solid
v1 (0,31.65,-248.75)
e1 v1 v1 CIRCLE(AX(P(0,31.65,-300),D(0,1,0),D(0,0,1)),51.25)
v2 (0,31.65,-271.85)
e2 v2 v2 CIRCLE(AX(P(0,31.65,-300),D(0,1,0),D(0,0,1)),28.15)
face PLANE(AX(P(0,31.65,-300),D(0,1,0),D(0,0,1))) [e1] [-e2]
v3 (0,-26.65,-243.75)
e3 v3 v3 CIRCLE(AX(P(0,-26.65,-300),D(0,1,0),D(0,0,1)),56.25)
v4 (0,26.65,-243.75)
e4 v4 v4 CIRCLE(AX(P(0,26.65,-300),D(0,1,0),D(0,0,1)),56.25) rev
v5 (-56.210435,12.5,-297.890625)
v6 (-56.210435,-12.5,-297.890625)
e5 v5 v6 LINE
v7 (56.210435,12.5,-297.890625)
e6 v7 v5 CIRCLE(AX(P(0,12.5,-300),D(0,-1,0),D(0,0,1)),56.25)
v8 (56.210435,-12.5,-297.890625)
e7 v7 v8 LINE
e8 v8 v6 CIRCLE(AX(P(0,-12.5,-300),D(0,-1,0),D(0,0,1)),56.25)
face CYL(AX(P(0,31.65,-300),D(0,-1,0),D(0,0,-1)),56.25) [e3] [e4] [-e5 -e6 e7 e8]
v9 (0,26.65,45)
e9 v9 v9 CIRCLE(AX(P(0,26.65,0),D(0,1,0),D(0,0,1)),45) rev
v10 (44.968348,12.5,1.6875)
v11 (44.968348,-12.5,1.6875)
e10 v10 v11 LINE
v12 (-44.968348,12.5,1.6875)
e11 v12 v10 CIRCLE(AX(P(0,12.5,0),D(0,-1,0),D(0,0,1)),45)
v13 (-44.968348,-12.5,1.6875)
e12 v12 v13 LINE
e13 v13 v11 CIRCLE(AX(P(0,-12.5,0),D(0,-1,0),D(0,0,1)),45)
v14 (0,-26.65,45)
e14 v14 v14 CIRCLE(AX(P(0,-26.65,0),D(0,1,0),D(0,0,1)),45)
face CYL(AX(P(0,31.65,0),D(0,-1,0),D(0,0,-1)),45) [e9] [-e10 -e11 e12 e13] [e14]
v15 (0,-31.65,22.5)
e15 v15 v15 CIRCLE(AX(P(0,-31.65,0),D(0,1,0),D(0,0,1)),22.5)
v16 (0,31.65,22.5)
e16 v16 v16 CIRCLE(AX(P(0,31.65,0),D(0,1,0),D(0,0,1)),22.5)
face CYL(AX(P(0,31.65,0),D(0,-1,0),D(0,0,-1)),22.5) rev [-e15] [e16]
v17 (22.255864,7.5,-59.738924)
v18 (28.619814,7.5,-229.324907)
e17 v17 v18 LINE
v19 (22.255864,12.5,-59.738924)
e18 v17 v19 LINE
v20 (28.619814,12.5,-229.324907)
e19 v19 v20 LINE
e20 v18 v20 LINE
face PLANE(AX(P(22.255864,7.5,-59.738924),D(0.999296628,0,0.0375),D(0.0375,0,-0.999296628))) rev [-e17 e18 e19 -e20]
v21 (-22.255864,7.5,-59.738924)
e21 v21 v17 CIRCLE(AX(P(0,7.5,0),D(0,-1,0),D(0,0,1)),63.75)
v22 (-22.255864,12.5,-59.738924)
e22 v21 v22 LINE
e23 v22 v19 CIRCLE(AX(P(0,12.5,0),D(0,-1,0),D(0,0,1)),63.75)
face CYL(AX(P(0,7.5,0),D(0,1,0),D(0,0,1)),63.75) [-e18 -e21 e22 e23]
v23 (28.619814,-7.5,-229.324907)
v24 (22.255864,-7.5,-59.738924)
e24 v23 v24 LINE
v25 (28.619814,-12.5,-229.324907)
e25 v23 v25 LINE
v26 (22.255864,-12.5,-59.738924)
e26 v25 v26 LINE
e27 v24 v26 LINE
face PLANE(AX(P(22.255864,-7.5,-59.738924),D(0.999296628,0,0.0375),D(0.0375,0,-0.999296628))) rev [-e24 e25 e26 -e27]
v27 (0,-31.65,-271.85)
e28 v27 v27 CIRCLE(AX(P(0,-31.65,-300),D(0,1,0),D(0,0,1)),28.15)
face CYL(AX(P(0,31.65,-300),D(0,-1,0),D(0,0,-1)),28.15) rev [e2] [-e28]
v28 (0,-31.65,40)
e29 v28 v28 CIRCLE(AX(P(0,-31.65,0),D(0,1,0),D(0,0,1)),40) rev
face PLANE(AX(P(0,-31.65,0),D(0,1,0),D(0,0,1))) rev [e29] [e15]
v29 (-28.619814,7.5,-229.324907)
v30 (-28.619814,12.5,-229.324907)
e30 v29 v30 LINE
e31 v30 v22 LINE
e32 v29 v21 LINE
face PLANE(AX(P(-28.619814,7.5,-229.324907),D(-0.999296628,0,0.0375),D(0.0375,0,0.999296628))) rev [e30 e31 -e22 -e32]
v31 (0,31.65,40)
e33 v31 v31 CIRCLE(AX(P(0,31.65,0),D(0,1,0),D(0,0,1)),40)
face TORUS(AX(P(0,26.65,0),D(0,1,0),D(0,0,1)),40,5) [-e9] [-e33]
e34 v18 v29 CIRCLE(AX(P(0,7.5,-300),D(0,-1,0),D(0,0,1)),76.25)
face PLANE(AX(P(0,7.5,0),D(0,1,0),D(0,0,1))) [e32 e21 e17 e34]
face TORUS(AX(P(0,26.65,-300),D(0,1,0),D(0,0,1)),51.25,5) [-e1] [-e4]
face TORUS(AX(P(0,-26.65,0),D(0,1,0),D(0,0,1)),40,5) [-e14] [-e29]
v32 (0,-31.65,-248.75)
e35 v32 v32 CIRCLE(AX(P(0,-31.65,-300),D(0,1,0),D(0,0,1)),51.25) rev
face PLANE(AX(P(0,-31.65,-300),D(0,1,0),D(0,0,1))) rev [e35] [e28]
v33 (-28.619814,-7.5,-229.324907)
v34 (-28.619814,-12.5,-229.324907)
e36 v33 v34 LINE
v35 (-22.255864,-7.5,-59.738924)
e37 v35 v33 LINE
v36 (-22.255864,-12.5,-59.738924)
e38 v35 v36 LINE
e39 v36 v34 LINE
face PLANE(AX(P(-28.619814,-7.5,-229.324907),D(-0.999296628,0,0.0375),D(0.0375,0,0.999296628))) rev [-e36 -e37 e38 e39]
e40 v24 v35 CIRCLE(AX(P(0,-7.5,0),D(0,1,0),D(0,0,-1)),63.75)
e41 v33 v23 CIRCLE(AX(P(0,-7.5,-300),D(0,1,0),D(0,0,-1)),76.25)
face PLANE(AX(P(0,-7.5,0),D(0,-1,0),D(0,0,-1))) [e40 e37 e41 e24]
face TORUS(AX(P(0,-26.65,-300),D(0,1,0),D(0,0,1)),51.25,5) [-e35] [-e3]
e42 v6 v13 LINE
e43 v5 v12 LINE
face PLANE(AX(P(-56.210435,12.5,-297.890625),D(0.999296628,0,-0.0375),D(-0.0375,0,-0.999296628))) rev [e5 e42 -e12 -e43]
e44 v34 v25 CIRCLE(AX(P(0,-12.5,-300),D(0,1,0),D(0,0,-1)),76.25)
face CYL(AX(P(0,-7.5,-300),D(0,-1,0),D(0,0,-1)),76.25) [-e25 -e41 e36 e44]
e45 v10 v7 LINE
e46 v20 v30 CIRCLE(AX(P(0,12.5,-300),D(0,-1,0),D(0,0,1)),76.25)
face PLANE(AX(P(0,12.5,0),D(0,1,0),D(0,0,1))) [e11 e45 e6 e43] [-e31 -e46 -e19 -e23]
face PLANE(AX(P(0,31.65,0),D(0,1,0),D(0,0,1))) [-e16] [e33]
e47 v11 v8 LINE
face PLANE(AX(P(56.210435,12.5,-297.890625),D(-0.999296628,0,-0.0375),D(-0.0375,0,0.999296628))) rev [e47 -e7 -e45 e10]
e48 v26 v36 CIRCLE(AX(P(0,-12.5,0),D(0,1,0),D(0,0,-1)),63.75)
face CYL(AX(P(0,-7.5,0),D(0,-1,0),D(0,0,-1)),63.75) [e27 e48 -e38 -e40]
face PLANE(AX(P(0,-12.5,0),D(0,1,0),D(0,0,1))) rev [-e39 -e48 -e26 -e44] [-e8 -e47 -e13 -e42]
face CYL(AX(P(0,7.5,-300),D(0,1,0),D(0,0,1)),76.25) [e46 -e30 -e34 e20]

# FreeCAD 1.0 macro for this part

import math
import FreeCAD as App
import Part
import Sketcher

V = App.Vector
Q = App.Units.Quantity


def edges_at(feature, points):
    """Names of the edges that pass closest to the given points."""
    edges = feature.Shape.Edges
    near = lambda p: min(range(len(edges)), key=lambda i: edges[i].distToShape(Part.Vertex(*p))[0])
    return sorted({f"Edge{near(p) + 1}" for p in points})

doc = App.newDocument("Part")
body = doc.addObject("PartDesign::Body", "Body")

# Sketch on XZ plane
sketch1 = doc.addObject("Sketcher::SketchObject", "Sketch")
body.addObject(sketch1)
sketch1.AttachmentSupport = (doc.XZ_Plane, [""])
sketch1.MapMode = "FlatFace"
sketch1.addGeometry(Part.Circle(V(0, 0, 0), V(0, 0, 1), 45), False)
sketch1.addGeometry(Part.Circle(V(0, 0, 0), V(0, 0, 1), 22), False)
sketch1.addConstraint(Sketcher.Constraint("Coincident", 0, 3, -1, 1))
sketch1.addConstraint(Sketcher.Constraint("Coincident", 1, 3, -1, 1))
sketch1.addConstraint(Sketcher.Constraint("Diameter", 0, Q("90 mm")))
sketch1.addConstraint(Sketcher.Constraint("Diameter", 1, Q("45 mm")))
pad1 = doc.addObject("PartDesign::Pad", "Pad")
body.addObject(pad1)
pad1.Profile = sketch1
pad1.Length = 63.3
pad1.Midplane = True
body2 = doc.addObject("PartDesign::Body", "Body001")

# Sketch on XZ plane
sketch2 = doc.addObject("Sketcher::SketchObject", "Sketch001")
body2.addObject(sketch2)
sketch2.AttachmentSupport = (doc.getObject("XZ_Plane001"), [""])
sketch2.MapMode = "FlatFace"
sketch2.addGeometry(Part.Circle(V(0, -300, 0), V(0, 0, 1), 56), False)
sketch2.addGeometry(Part.Circle(V(0, -300, 0), V(0, 0, 1), 28), False)
sketch2.addConstraint(Sketcher.Constraint("Coincident", 1, 3, 0, 3))
sketch2.addConstraint(Sketcher.Constraint("PointOnObject", 0, 3, -2))
sketch2.addConstraint(Sketcher.Constraint("Diameter", 0, Q("112.5 mm")))
sketch2.addConstraint(Sketcher.Constraint("Diameter", 1, Q("56.3 mm")))
sketch2.addConstraint(Sketcher.Constraint("DistanceY", 0, 3, -1, 1, Q("300 mm")))
pad2 = doc.addObject("PartDesign::Pad", "Pad001")
body2.addObject(pad2)
pad2.Profile = sketch2
pad2.Length = 63.3
pad2.Midplane = True
body.AllowCompound = True
doc.recompute()

boolean = doc.addObject("PartDesign::Boolean", "Boolean")
body.addObject(boolean)
boolean.Type = "Fuse"
boolean.addObjects([body2])

# Sketch on XZ plane
sketch3 = doc.addObject("Sketcher::SketchObject", "Sketch002")
body.addObject(sketch3)
sketch3.AttachmentSupport = (doc.XZ_Plane, [""])
sketch3.MapMode = "FlatFace"
sketch3.addGeometry(Part.LineSegment(V(-56, -298, 0), V(-45, 2, 0)), False)
sketch3.addGeometry(Part.ArcOfCircle(Part.Circle(V(0, 0, 0), V(0, 0, 1), 45), math.radians(178), math.radians(362)), False)
sketch3.addGeometry(Part.LineSegment(V(45, 2, 0), V(56, -298, 0)), False)
sketch3.addGeometry(Part.ArcOfCircle(Part.Circle(V(0, -300, 0), V(0, 0, 1), 56), math.radians(2), math.radians(178)), False)
sketch3.addConstraint(Sketcher.Constraint("Tangent", 0, 2, 1, 1))
sketch3.addConstraint(Sketcher.Constraint("Tangent", 1, 2, 2, 1))
sketch3.addConstraint(Sketcher.Constraint("Tangent", 2, 2, 3, 1))
sketch3.addConstraint(Sketcher.Constraint("Tangent", 3, 2, 0, 1))
sketch3.addConstraint(Sketcher.Constraint("Coincident", 1, 3, -1, 1))
sketch3.addConstraint(Sketcher.Constraint("PointOnObject", 3, 3, -2))
sketch3.addConstraint(Sketcher.Constraint("Radius", 1, Q("45 mm")))
sketch3.addConstraint(Sketcher.Constraint("Radius", 3, Q("56.25 mm")))
sketch3.addConstraint(Sketcher.Constraint("DistanceY", 3, 3, -1, 1, Q("300 mm")))
pad3 = doc.addObject("PartDesign::Pad", "Pad002")
body.addObject(pad3)
pad3.Profile = sketch3
pad3.Length = 25
pad3.Midplane = True

# Sketch on XZ plane
sketch4 = doc.addObject("Sketcher::SketchObject", "Sketch003")
body.addObject(sketch4)
sketch4.AttachmentSupport = (doc.XZ_Plane, [""])
sketch4.MapMode = "FlatFace"
sketch4.AttachmentOffset = App.Placement(V(0, 0, -12.5), App.Rotation())
sketch4.addGeometry(Part.LineSegment(V(-29, -229, 0), V(-22, -60, 0)), False)
sketch4.addGeometry(Part.ArcOfCircle(Part.Circle(V(0, 0, 0), V(0, 0, 1), 64), math.radians(-110), math.radians(-70)), False)
sketch4.addGeometry(Part.LineSegment(V(22, -60, 0), V(29, -229, 0)), False)
sketch4.addGeometry(Part.ArcOfCircle(Part.Circle(V(0, -300, 0), V(0, 0, 1), 76), math.radians(68), math.radians(112)), False)
sketch4.addConstraint(Sketcher.Constraint("Coincident", 0, 2, 1, 1))
sketch4.addConstraint(Sketcher.Constraint("Coincident", 1, 2, 2, 1))
sketch4.addConstraint(Sketcher.Constraint("Coincident", 2, 2, 3, 1))
sketch4.addConstraint(Sketcher.Constraint("Coincident", 3, 2, 0, 1))
sketch4.addConstraint(Sketcher.Constraint("Coincident", 1, 3, -1, 1))
sketch4.addConstraint(Sketcher.Constraint("Symmetric", 2, 2, 3, 2, -2))
sketch4.addConstraint(Sketcher.Constraint("Horizontal", 0, 2, 1, 2))
sketch4.addConstraint(Sketcher.Constraint("Radius", 1, Q("63.75 mm")))
sketch4.addConstraint(Sketcher.Constraint("Radius", 3, Q("76.25 mm")))
sketch4.addConstraint(Sketcher.Constraint("DistanceY", 3, 3, -1, 1, Q("300 mm")))
sketch4.addConstraint(Sketcher.Constraint("Distance", 0, Q("169.70535 mm")))
sketch4.addConstraint(Sketcher.Constraint("DistanceX", 1, 2, 2, 2, Q("6.363951 mm")))
pocket1 = doc.addObject("PartDesign::Pocket", "Pocket")
body.addObject(pocket1)
pocket1.Profile = sketch4
pocket1.Length = 5
pocket1.Reversed = True

# Sketch on XZ plane
sketch5 = doc.addObject("Sketcher::SketchObject", "Sketch004")
body.addObject(sketch5)
sketch5.AttachmentSupport = (doc.XZ_Plane, [""])
sketch5.MapMode = "FlatFace"
sketch5.AttachmentOffset = App.Placement(V(0, 0, 7.5), App.Rotation())
sketch5.addGeometry(Part.LineSegment(V(29, -229, 0), V(22, -60, 0)), False)
sketch5.addGeometry(Part.ArcOfCircle(Part.Circle(V(0, 0, 0), V(0, 0, 1), 64), math.radians(-110), math.radians(-70)), False)
sketch5.addGeometry(Part.LineSegment(V(-22, -60, 0), V(-29, -229, 0)), False)
sketch5.addGeometry(Part.ArcOfCircle(Part.Circle(V(0, -300, 0), V(0, 0, 1), 76), math.radians(68), math.radians(112)), False)
sketch5.addConstraint(Sketcher.Constraint("Coincident", 0, 2, 1, 2))
sketch5.addConstraint(Sketcher.Constraint("Coincident", 1, 1, 2, 1))
sketch5.addConstraint(Sketcher.Constraint("Coincident", 2, 2, 3, 2))
sketch5.addConstraint(Sketcher.Constraint("Coincident", 3, 1, 0, 1))
sketch5.addConstraint(Sketcher.Constraint("Coincident", 1, 3, -1, 1))
sketch5.addConstraint(Sketcher.Constraint("Symmetric", 2, 2, 3, 1, -2))
sketch5.addConstraint(Sketcher.Constraint("Horizontal", 0, 2, 1, 1))
sketch5.addConstraint(Sketcher.Constraint("Radius", 1, Q("63.75 mm")))
sketch5.addConstraint(Sketcher.Constraint("Radius", 3, Q("76.25 mm")))
sketch5.addConstraint(Sketcher.Constraint("DistanceY", 3, 3, -1, 1, Q("300 mm")))
sketch5.addConstraint(Sketcher.Constraint("Distance", 0, Q("169.70535 mm")))
sketch5.addConstraint(Sketcher.Constraint("DistanceX", 2, 2, 1, 1, Q("6.363951 mm")))
pocket2 = doc.addObject("PartDesign::Pocket", "Pocket001")
body.addObject(pocket2)
pocket2.Profile = sketch5
pocket2.Length = 5
pocket2.Reversed = True
doc.recompute()

fillet = doc.addObject("PartDesign::Fillet", "Fillet")
body.addObject(fillet)
fillet.Base = (pocket2, edges_at(pocket2, [
    (0, -31.65, -45),
    (0, 31.65, -356.25),
    (0, -31.65, -356.25),
    (0, 31.65, -45),
]))
fillet.Radius = 5

doc.recompute()
